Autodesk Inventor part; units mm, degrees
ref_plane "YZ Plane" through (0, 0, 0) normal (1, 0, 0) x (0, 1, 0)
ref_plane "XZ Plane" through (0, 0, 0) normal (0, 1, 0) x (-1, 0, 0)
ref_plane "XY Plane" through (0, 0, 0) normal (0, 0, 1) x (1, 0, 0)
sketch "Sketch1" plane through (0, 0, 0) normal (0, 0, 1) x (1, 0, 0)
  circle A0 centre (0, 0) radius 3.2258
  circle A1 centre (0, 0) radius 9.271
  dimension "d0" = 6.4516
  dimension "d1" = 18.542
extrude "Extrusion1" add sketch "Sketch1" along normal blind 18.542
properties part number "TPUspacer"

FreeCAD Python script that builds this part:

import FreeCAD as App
import Part
import Sketcher
Q = App.Units.Quantity

doc = App.newDocument("Part")
body = doc.addObject("PartDesign::Body", "Body")

sketch1 = body.newObject("Sketcher::SketchObject", "Sketch")
sketch1.AttachmentSupport = (doc.getObject("XY_Plane"), [""])
sketch1.MapMode = "FlatFace"
sketch1.addGeometry([
    Part.Circle(App.Vector(0, 0, 0), App.Vector(0, 0, 1), 9.3),
    Part.Circle(App.Vector(0, 0, 0), App.Vector(0, 0, 1), 3.2),
], False)
sketch1.addConstraint([
    Sketcher.Constraint("Coincident", 0, 3, -1, 1),
    Sketcher.Constraint("Coincident", 1, 3, -1, 1),
    Sketcher.Constraint("Diameter", 0, Q("0.73 in")),
    Sketcher.Constraint("Diameter", 1, Q("0.254 in")),
])
pad1 = body.newObject("PartDesign::Pad", "Pad")
pad1.Profile = sketch1
pad1.Length = Q("0.73 in")

doc.recompute()
